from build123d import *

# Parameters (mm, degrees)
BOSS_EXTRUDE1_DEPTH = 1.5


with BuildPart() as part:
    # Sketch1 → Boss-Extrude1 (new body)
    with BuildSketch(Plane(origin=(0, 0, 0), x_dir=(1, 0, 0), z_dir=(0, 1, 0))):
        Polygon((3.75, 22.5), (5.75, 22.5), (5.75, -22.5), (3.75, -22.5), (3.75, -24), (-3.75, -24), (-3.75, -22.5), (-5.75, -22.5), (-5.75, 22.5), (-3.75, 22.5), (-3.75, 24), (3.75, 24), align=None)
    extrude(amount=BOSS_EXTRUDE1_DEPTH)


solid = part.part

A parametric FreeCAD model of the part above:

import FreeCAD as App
import Part
import Sketcher
Q = App.Units.Quantity

doc = App.newDocument("Part")
params = doc.addObject("Spreadsheet::Sheet", "Params")
for row, (alias, value) in enumerate([
    ("sketch1_width", "2 mm"),
    ("sketch1_height", "45 mm"),
    ("sketch1_width2", "7.5 mm"),
    ("sketch1_height2", "1.5 mm"),
    ("pad1_length", "1.5 mm"),
], start=1):
    params.set(f"A{row}", alias)
    params.set(f"B{row}", "=" + value)
    params.setAlias(f"B{row}", alias)

body = doc.addObject("PartDesign::Body", "Body")

# Sketch on XZ plane
sketch1 = doc.addObject("Sketcher::SketchObject", "Sketch")
body.addObject(sketch1)
sketch1.AttachmentSupport = (doc.XZ_Plane, [""])
sketch1.MapMode = "FlatFace"
sketch1.addGeometry(Part.LineSegment(App.Vector(5.8, -22.5, 0), App.Vector(3.8, -22.5, 0)), False)
sketch1.addGeometry(Part.LineSegment(App.Vector(3.8, -22.5, 0), App.Vector(3.8, -24, 0)), False)
sketch1.addGeometry(Part.LineSegment(App.Vector(3.8, -24, 0), App.Vector(-3.8, -24, 0)), False)
sketch1.addGeometry(Part.LineSegment(App.Vector(-3.8, -24, 0), App.Vector(-3.8, -22.5, 0)), False)
sketch1.addGeometry(Part.LineSegment(App.Vector(-3.8, -22.5, 0), App.Vector(-5.8, -22.5, 0)), False)
sketch1.addGeometry(Part.LineSegment(App.Vector(-5.8, -22.5, 0), App.Vector(-5.8, 22.5, 0)), False)
sketch1.addGeometry(Part.LineSegment(App.Vector(-5.8, 22.5, 0), App.Vector(-3.8, 22.5, 0)), False)
sketch1.addGeometry(Part.LineSegment(App.Vector(-3.8, 22.5, 0), App.Vector(-3.8, 24, 0)), False)
sketch1.addGeometry(Part.LineSegment(App.Vector(-3.8, 24, 0), App.Vector(3.8, 24, 0)), False)
sketch1.addGeometry(Part.LineSegment(App.Vector(3.8, 24, 0), App.Vector(3.8, 22.5, 0)), False)
sketch1.addGeometry(Part.LineSegment(App.Vector(3.8, 22.5, 0), App.Vector(5.8, 22.5, 0)), False)
sketch1.addGeometry(Part.LineSegment(App.Vector(5.8, 22.5, 0), App.Vector(5.8, -22.5, 0)), False)
sketch1.addConstraint(Sketcher.Constraint("Coincident", 0, 2, 1, 1))
sketch1.addConstraint(Sketcher.Constraint("Coincident", 1, 2, 2, 1))
sketch1.addConstraint(Sketcher.Constraint("Coincident", 2, 2, 3, 1))
sketch1.addConstraint(Sketcher.Constraint("Coincident", 3, 2, 4, 1))
sketch1.addConstraint(Sketcher.Constraint("Coincident", 4, 2, 5, 1))
sketch1.addConstraint(Sketcher.Constraint("Coincident", 5, 2, 6, 1))
sketch1.addConstraint(Sketcher.Constraint("Coincident", 6, 2, 7, 1))
sketch1.addConstraint(Sketcher.Constraint("Coincident", 7, 2, 8, 1))
sketch1.addConstraint(Sketcher.Constraint("Coincident", 8, 2, 9, 1))
sketch1.addConstraint(Sketcher.Constraint("Coincident", 9, 2, 10, 1))
sketch1.addConstraint(Sketcher.Constraint("Coincident", 10, 2, 11, 1))
sketch1.addConstraint(Sketcher.Constraint("Coincident", 11, 2, 0, 1))
sketch1.addConstraint(Sketcher.Constraint("Horizontal", 0))
sketch1.addConstraint(Sketcher.Constraint("Vertical", 1))
sketch1.addConstraint(Sketcher.Constraint("Horizontal", 2))
sketch1.addConstraint(Sketcher.Constraint("Vertical", 3))
sketch1.addConstraint(Sketcher.Constraint("Horizontal", 4))
sketch1.addConstraint(Sketcher.Constraint("Vertical", 5))
sketch1.addConstraint(Sketcher.Constraint("Horizontal", 6))
sketch1.addConstraint(Sketcher.Constraint("Vertical", 7))
sketch1.addConstraint(Sketcher.Constraint("Horizontal", 8))
sketch1.addConstraint(Sketcher.Constraint("Vertical", 9))
sketch1.addConstraint(Sketcher.Constraint("Horizontal", 10))
sketch1.addConstraint(Sketcher.Constraint("Vertical", 11))
sketch1.addConstraint(Sketcher.Constraint("Symmetric", 0, 2, 6, 2, -1, 1))
sketch1.addConstraint(Sketcher.Constraint("Symmetric", 2, 2, 8, 2, -1, 1))
sketch1.addConstraint(Sketcher.Constraint("Symmetric", 4, 2, 10, 2, -1, 1))
sketch1.addConstraint(Sketcher.Constraint("Symmetric", 0, 2, 3, 2, -2))
sketch1.addConstraint(Sketcher.Constraint("DistanceX", 0, 2, 0, 1, Q("2 mm")))
sketch1.addConstraint(Sketcher.Constraint("DistanceY", 5, 1, 5, 2, Q("45 mm")))
sketch1.addConstraint(Sketcher.Constraint("DistanceX", 2, 2, 2, 1, Q("7.5 mm")))
sketch1.addConstraint(Sketcher.Constraint("DistanceY", 1, 2, 1, 1, Q("1.5 mm")))
sketch1.setExpression("Constraints[28]", "Params.sketch1_width")
sketch1.setExpression("Constraints[29]", "Params.sketch1_height")
sketch1.setExpression("Constraints[30]", "Params.sketch1_width2")
sketch1.setExpression("Constraints[31]", "Params.sketch1_height2")
pad1 = doc.addObject("PartDesign::Pad", "Pad")
body.addObject(pad1)
pad1.Profile = sketch1
pad1.setExpression("Length", "Params.pad1_length")
pad1.Reversed = True

doc.recompute()
